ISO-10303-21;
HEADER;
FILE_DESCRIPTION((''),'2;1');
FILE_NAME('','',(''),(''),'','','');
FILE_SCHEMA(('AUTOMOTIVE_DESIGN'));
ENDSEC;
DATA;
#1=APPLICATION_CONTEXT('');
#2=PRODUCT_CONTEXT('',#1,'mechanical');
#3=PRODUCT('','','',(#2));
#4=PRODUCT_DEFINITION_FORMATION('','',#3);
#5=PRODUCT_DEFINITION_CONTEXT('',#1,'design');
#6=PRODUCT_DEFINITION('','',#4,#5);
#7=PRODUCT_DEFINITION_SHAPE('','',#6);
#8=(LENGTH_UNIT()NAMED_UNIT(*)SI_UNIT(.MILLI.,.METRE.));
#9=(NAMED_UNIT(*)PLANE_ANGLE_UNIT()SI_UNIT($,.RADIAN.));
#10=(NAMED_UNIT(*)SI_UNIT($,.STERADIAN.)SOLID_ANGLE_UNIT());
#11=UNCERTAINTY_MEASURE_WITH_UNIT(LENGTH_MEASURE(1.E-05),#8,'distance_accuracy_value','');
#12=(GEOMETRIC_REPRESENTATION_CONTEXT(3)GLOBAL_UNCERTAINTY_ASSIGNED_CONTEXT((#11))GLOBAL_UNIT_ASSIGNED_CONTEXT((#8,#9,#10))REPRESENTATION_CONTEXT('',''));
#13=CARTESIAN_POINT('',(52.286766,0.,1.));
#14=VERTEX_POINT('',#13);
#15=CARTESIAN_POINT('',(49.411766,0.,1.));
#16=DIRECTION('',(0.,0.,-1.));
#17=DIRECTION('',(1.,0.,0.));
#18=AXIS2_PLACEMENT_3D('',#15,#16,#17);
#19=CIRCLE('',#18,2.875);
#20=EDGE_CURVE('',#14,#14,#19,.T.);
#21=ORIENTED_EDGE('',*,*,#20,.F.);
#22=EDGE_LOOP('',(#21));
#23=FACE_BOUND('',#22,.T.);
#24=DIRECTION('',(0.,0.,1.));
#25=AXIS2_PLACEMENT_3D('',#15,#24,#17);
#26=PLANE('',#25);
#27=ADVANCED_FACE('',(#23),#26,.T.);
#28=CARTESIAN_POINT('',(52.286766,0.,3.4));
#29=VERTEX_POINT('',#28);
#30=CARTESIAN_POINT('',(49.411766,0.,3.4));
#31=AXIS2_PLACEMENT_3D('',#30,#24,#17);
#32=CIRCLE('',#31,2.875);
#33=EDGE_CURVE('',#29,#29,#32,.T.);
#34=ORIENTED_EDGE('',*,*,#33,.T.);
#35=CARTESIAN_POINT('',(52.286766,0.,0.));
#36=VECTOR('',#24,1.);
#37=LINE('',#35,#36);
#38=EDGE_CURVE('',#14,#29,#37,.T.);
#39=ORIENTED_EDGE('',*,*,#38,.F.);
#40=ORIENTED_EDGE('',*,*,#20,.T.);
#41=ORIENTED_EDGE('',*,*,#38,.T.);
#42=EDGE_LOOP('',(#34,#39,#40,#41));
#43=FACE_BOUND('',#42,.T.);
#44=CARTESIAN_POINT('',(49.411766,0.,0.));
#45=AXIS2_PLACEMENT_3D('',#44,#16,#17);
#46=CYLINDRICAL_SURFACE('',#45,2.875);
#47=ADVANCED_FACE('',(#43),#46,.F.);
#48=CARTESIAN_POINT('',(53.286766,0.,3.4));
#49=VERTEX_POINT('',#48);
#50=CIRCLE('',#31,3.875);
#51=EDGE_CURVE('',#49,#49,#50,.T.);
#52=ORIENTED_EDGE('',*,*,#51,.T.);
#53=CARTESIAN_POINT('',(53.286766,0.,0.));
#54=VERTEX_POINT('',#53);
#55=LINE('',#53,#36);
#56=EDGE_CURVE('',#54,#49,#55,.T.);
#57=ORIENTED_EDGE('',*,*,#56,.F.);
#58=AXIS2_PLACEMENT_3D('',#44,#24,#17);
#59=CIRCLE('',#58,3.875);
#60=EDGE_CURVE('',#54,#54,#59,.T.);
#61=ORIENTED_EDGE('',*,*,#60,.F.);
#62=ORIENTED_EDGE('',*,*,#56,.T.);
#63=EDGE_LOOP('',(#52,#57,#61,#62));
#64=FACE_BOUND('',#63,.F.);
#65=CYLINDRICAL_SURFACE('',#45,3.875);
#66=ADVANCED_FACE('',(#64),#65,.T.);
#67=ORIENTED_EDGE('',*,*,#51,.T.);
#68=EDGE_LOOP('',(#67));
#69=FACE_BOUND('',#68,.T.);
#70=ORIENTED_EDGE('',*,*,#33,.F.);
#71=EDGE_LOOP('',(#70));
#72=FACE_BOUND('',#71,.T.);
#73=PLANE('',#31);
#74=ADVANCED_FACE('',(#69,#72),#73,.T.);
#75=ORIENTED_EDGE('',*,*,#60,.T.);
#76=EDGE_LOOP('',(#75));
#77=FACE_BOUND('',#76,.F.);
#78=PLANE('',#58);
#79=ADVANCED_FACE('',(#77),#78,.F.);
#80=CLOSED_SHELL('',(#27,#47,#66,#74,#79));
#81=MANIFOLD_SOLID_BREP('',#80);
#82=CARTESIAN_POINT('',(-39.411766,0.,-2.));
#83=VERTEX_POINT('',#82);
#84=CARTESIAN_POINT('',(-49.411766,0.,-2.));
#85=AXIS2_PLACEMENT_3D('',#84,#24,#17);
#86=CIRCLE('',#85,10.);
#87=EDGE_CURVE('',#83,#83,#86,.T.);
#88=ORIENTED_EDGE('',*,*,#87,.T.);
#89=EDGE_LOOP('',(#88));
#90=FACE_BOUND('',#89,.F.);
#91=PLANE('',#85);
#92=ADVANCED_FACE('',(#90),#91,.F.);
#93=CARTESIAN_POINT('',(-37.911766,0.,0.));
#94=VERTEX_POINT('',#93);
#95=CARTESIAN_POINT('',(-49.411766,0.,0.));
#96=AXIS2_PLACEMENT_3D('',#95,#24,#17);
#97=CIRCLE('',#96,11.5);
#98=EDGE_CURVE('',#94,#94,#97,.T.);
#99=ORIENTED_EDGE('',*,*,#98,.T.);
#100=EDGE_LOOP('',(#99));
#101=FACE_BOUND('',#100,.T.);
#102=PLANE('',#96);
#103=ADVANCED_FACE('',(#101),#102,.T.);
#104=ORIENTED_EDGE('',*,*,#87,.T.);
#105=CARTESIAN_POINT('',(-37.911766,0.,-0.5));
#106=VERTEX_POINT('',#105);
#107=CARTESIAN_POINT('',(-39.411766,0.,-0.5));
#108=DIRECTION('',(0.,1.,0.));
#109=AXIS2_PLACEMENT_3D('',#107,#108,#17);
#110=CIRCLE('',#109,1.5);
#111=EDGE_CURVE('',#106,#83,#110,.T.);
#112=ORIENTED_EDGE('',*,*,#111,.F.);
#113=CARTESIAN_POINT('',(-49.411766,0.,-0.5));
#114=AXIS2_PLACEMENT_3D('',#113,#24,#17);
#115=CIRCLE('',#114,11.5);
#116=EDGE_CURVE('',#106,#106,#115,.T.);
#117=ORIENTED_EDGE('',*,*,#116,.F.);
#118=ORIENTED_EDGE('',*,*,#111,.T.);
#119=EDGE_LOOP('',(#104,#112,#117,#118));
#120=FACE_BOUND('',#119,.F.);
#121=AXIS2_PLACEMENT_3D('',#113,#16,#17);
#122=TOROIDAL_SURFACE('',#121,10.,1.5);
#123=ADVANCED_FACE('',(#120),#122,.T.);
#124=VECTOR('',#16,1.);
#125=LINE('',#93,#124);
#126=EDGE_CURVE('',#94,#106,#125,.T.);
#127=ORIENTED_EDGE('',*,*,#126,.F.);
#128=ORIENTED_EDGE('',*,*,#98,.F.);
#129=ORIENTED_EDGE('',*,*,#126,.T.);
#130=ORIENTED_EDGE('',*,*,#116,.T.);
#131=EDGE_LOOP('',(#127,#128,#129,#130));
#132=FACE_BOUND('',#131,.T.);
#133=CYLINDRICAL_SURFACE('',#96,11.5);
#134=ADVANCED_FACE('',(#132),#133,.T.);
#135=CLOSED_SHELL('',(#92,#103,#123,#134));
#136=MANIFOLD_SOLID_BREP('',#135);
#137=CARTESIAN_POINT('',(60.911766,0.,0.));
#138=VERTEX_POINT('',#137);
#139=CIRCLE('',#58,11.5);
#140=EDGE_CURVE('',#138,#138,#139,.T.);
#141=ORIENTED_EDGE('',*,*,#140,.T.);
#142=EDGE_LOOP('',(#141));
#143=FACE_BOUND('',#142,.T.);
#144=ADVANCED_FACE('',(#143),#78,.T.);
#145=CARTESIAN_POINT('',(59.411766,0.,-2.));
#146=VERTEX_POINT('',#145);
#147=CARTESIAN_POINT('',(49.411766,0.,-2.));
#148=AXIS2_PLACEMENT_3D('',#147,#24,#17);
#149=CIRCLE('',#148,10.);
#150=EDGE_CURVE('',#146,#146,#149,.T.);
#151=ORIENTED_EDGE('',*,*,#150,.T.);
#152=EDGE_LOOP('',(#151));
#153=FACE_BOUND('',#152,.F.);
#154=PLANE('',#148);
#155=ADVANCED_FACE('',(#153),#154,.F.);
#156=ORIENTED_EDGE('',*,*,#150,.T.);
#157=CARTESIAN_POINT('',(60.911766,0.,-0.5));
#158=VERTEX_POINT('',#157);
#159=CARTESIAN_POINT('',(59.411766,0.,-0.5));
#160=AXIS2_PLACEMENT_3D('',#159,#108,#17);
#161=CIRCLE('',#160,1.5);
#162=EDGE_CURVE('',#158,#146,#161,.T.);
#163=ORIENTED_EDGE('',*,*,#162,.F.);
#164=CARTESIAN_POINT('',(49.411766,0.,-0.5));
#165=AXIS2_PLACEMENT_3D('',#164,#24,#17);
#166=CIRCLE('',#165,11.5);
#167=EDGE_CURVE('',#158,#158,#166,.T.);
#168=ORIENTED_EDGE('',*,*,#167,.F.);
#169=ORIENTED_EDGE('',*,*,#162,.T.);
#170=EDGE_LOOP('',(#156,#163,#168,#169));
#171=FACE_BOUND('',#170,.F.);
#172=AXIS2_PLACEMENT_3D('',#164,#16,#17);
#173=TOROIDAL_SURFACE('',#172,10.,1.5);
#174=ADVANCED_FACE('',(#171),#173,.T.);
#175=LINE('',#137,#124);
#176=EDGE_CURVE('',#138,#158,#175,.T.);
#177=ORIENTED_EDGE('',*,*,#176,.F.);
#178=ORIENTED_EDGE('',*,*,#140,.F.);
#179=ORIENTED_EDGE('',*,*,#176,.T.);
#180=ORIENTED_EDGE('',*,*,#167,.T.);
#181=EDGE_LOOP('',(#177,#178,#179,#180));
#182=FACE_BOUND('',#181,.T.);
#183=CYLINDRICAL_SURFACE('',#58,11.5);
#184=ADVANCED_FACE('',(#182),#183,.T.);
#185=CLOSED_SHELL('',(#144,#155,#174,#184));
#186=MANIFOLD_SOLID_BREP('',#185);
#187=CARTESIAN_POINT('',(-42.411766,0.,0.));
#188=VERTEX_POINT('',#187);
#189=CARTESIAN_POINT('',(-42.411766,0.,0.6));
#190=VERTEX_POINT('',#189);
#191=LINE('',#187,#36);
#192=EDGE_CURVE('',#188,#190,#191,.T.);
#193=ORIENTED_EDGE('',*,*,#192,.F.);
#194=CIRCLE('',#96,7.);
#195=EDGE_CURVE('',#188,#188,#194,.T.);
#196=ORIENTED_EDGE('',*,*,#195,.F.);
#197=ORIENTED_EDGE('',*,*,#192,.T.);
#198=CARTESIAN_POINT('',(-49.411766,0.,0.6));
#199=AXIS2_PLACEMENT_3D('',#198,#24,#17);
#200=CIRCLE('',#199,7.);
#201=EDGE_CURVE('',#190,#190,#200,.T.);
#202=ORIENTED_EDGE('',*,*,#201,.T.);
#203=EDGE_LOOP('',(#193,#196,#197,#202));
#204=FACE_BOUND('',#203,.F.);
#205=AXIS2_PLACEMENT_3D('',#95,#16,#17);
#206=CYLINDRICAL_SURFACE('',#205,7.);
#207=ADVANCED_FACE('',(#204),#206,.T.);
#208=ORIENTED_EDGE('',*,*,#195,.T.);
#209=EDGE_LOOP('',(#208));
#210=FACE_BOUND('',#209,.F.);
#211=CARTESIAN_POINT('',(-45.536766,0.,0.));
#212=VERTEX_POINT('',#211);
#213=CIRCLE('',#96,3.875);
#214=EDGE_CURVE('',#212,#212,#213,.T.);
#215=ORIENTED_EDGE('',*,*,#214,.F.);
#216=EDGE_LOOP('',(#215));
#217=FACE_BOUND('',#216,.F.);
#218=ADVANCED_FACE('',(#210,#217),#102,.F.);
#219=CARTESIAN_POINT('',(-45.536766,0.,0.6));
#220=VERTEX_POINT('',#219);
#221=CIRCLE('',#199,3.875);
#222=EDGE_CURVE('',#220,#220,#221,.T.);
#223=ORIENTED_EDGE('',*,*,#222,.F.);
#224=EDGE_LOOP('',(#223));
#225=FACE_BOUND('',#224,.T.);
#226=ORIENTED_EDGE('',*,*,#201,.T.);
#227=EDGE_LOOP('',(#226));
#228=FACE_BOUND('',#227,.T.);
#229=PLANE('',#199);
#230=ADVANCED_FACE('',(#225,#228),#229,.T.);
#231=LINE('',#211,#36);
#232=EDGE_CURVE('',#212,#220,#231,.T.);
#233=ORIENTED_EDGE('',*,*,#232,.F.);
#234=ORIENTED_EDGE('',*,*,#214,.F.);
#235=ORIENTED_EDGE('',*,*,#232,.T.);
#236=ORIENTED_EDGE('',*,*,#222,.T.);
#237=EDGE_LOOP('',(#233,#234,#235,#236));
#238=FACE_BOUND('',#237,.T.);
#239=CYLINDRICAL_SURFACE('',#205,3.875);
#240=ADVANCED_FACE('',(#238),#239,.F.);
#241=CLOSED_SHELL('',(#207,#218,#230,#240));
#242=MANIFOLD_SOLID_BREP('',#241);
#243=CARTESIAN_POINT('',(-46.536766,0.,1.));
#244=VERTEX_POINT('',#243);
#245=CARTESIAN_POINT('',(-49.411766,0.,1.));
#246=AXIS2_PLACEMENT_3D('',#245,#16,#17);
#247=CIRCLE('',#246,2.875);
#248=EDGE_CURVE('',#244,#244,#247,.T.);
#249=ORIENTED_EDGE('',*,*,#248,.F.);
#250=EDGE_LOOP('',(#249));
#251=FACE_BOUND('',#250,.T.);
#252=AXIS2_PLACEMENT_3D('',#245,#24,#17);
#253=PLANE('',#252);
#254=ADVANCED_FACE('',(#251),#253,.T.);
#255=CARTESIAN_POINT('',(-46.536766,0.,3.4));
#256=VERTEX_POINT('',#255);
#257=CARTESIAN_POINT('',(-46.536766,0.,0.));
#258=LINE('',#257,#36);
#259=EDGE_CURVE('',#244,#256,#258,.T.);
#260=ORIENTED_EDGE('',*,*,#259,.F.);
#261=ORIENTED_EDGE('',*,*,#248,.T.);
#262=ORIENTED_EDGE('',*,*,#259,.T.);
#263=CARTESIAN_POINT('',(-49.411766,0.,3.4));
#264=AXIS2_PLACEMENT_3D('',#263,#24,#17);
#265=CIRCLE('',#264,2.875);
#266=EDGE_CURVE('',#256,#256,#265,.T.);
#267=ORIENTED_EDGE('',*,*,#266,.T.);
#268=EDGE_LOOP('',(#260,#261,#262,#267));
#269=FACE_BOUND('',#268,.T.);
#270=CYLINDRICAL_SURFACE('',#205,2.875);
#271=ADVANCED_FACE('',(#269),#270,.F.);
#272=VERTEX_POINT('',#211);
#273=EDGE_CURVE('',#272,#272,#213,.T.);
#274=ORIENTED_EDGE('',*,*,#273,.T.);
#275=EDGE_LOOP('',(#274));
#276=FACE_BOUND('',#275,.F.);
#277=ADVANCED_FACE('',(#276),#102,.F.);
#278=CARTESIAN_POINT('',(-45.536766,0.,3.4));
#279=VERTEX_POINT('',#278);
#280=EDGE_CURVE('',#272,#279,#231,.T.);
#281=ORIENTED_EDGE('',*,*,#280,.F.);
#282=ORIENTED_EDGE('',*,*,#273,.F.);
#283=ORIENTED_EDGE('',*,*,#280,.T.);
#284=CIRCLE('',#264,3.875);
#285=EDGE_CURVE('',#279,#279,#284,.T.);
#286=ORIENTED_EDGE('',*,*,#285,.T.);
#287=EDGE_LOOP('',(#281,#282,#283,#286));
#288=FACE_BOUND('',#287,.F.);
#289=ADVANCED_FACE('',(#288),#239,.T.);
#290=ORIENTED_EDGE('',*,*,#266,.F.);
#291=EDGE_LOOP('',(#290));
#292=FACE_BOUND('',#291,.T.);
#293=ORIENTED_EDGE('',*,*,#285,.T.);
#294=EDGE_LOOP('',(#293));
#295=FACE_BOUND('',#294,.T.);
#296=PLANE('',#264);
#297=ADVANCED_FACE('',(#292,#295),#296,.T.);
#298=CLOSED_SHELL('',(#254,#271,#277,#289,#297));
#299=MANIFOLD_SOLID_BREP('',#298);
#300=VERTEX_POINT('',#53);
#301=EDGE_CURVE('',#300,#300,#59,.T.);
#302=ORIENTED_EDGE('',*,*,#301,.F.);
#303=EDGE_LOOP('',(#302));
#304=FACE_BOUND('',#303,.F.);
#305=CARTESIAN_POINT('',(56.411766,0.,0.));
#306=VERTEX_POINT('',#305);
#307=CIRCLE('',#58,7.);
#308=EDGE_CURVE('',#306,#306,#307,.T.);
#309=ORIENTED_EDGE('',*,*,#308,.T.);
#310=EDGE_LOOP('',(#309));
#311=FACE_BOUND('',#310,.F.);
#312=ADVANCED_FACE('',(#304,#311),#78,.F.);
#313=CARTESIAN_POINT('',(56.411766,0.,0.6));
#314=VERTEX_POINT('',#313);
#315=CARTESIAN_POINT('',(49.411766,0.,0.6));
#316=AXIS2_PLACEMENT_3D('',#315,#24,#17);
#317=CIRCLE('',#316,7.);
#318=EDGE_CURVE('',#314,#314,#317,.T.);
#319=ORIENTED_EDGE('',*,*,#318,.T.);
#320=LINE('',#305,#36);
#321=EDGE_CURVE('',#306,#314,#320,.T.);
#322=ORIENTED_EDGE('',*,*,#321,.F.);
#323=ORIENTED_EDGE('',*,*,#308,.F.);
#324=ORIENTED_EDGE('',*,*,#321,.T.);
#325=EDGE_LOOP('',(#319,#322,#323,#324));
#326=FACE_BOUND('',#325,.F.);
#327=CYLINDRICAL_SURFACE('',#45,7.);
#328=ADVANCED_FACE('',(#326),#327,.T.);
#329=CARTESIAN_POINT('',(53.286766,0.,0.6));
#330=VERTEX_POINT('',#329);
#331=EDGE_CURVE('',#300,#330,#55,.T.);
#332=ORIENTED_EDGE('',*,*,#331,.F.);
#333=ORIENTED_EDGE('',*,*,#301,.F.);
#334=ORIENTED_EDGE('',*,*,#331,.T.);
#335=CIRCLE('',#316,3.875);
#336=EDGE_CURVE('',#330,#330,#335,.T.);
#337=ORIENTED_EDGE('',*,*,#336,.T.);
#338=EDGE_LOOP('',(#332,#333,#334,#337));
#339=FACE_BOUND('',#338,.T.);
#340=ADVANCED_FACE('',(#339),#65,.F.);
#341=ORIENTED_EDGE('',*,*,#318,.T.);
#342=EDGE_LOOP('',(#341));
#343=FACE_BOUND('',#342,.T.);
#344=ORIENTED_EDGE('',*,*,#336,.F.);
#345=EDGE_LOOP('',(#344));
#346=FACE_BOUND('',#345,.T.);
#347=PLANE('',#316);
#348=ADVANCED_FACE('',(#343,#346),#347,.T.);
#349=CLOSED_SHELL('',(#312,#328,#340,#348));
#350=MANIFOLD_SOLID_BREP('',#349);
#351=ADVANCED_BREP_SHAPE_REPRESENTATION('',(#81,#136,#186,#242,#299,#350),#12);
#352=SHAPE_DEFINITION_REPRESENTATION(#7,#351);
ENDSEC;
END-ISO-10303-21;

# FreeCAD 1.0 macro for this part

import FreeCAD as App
import Part
import Sketcher
from FreeCAD import Vector
Q = App.Units.Quantity


def edges_at(feature, points):
    """Names of the edges that pass closest to the given points."""
    edges = feature.Shape.Edges
    near = lambda p: min(range(len(edges)), key=lambda i: edges[i].distToShape(Part.Vertex(*p))[0])
    return sorted({f"Edge{near(p) + 1}" for p in points})


def faces_at(feature, points):
    """Names of the faces that lie closest to the given points."""
    faces = feature.Shape.Faces
    near = lambda p: min(range(len(faces)), key=lambda i: faces[i].distToShape(Part.Vertex(*p))[0])
    return sorted({f"Face{near(p) + 1}" for p in points})

doc = App.newDocument("Part")
body = doc.addObject("PartDesign::Body", "Body")

# Sketch on XY plane
sketch1 = body.newObject("Sketcher::SketchObject", "Sketch")
sketch1.AttachmentSupport = (doc.getObject("XY_Plane"), [""])
sketch1.MapMode = "FlatFace"
sketch1.addGeometry(Part.Circle(Vector(-49.411766, 0, 0), Vector(0, 0, 1), 3.875), False)
sketch1.addConstraint(Sketcher.Constraint("PointOnObject", 0, 3, -1))
sketch1.addConstraint(Sketcher.Constraint("Diameter", 0, Q("7.75 mm")))
sketch1.addConstraint(Sketcher.Constraint("DistanceX", 0, 3, -1, 1, Q("49.411766 mm")))
pad1 = body.newObject("PartDesign::Pad", "Pad")
pad1.Profile = sketch1
pad1.Length = 3.4
doc.recompute()

thickness = body.newObject("PartDesign::Thickness", "Thickness")
thickness.Base = (pad1, faces_at(pad1, [(-49.412, 0, 3.4)]))
thickness.Value = 1
thickness.Reversed = True
thickness.Join = "Arc"
body2 = doc.addObject("PartDesign::Body", "Body001")

# Sketch on XY plane
sketch2 = body2.newObject("Sketcher::SketchObject", "Sketch001")
sketch2.AttachmentSupport = (doc.getObject("XY_Plane001"), [""])
sketch2.MapMode = "FlatFace"
sketch2.addGeometry(Part.Circle(Vector(49.411766, 0, 0), Vector(0, 0, 1), 3.875), False)
sketch2.addConstraint(Sketcher.Constraint("PointOnObject", 0, 3, -1))
sketch2.addConstraint(Sketcher.Constraint("Diameter", 0, Q("7.75 mm")))
sketch2.addConstraint(Sketcher.Constraint("DistanceX", -1, 1, 0, 3, Q("49.411766 mm")))
pad2 = body2.newObject("PartDesign::Pad", "Pad001")
pad2.Profile = sketch2
pad2.Length = 3.4
doc.recompute()

thickness2 = body2.newObject("PartDesign::Thickness", "Thickness001")
thickness2.Base = (pad2, faces_at(pad2, [(49.412, 0, 3.4)]))
thickness2.Value = 1
thickness2.Reversed = True
thickness2.Join = "Arc"
body3 = doc.addObject("PartDesign::Body", "Body002")

# Sketch on XY plane
sketch3 = body3.newObject("Sketcher::SketchObject", "Sketch002")
sketch3.AttachmentSupport = (doc.getObject("XY_Plane002"), [""])
sketch3.MapMode = "FlatFace"
sketch3.addGeometry(Part.Circle(Vector(-49.411766, 0, 0), Vector(0, 0, 1), 7), False)
sketch3.addGeometry(Part.Circle(Vector(-49.411766, 0, 0), Vector(0, 0, 1), 3.875), False)
sketch3.addConstraint(Sketcher.Constraint("Coincident", 1, 3, 0, 3))
sketch3.addConstraint(Sketcher.Constraint("PointOnObject", 0, 3, -1))
sketch3.addConstraint(Sketcher.Constraint("Diameter", 0, Q("14 mm")))
sketch3.addConstraint(Sketcher.Constraint("Diameter", 1, Q("7.75 mm")))
sketch3.addConstraint(Sketcher.Constraint("DistanceX", 0, 3, -1, 1, Q("49.411766 mm")))
pad3 = body3.newObject("PartDesign::Pad", "Pad002")
pad3.Profile = sketch3
pad3.Length = 0.6
body4 = doc.addObject("PartDesign::Body", "Body003")

# Sketch on XY plane
sketch4 = body4.newObject("Sketcher::SketchObject", "Sketch003")
sketch4.AttachmentSupport = (doc.getObject("XY_Plane003"), [""])
sketch4.MapMode = "FlatFace"
sketch4.addGeometry(Part.Circle(Vector(49.411766, 0, 0), Vector(0, 0, 1), 7), False)
sketch4.addGeometry(Part.Circle(Vector(49.411766, 0, 0), Vector(0, 0, 1), 3.875), False)
sketch4.addConstraint(Sketcher.Constraint("Coincident", 1, 3, 0, 3))
sketch4.addConstraint(Sketcher.Constraint("PointOnObject", 0, 3, -1))
sketch4.addConstraint(Sketcher.Constraint("Diameter", 0, Q("14 mm")))
sketch4.addConstraint(Sketcher.Constraint("Diameter", 1, Q("7.75 mm")))
sketch4.addConstraint(Sketcher.Constraint("DistanceX", -1, 1, 0, 3, Q("49.411766 mm")))
pad4 = body4.newObject("PartDesign::Pad", "Pad003")
pad4.Profile = sketch4
pad4.Length = 0.6
body5 = doc.addObject("PartDesign::Body", "Body004")

# Sketch on XY plane
sketch5 = body5.newObject("Sketcher::SketchObject", "Sketch004")
sketch5.AttachmentSupport = (doc.getObject("XY_Plane004"), [""])
sketch5.MapMode = "FlatFace"
sketch5.addGeometry(Part.Circle(Vector(-49.411766, 0, 0), Vector(0, 0, 1), 11.5), False)
sketch5.addConstraint(Sketcher.Constraint("PointOnObject", 0, 3, -1))
sketch5.addConstraint(Sketcher.Constraint("Diameter", 0, Q("23 mm")))
sketch5.addConstraint(Sketcher.Constraint("DistanceX", 0, 3, -1, 1, Q("49.411766 mm")))
pad5 = body5.newObject("PartDesign::Pad", "Pad004")
pad5.Profile = sketch5
pad5.Length = 2
pad5.Reversed = True
doc.recompute()

fillet = body5.newObject("PartDesign::Fillet", "Fillet")
fillet.Base = (pad5, edges_at(pad5, [(-60.912, 0, -2)]))
fillet.Radius = 1.5
body6 = doc.addObject("PartDesign::Body", "Body005")

# Sketch on XY plane
sketch6 = body6.newObject("Sketcher::SketchObject", "Sketch005")
sketch6.AttachmentSupport = (doc.getObject("XY_Plane005"), [""])
sketch6.MapMode = "FlatFace"
sketch6.addGeometry(Part.Circle(Vector(49.411766, 0, 0), Vector(0, 0, 1), 11.5), False)
sketch6.addConstraint(Sketcher.Constraint("PointOnObject", 0, 3, -1))
sketch6.addConstraint(Sketcher.Constraint("Diameter", 0, Q("23 mm")))
sketch6.addConstraint(Sketcher.Constraint("DistanceX", -1, 1, 0, 3, Q("49.411766 mm")))
pad6 = body6.newObject("PartDesign::Pad", "Pad005")
pad6.Profile = sketch6
pad6.Length = 2
pad6.Reversed = True
doc.recompute()

fillet2 = body6.newObject("PartDesign::Fillet", "Fillet001")
fillet2.Base = (pad6, edges_at(pad6, [(37.912, 0, -2)]))
fillet2.Radius = 1.5

doc.recompute()
